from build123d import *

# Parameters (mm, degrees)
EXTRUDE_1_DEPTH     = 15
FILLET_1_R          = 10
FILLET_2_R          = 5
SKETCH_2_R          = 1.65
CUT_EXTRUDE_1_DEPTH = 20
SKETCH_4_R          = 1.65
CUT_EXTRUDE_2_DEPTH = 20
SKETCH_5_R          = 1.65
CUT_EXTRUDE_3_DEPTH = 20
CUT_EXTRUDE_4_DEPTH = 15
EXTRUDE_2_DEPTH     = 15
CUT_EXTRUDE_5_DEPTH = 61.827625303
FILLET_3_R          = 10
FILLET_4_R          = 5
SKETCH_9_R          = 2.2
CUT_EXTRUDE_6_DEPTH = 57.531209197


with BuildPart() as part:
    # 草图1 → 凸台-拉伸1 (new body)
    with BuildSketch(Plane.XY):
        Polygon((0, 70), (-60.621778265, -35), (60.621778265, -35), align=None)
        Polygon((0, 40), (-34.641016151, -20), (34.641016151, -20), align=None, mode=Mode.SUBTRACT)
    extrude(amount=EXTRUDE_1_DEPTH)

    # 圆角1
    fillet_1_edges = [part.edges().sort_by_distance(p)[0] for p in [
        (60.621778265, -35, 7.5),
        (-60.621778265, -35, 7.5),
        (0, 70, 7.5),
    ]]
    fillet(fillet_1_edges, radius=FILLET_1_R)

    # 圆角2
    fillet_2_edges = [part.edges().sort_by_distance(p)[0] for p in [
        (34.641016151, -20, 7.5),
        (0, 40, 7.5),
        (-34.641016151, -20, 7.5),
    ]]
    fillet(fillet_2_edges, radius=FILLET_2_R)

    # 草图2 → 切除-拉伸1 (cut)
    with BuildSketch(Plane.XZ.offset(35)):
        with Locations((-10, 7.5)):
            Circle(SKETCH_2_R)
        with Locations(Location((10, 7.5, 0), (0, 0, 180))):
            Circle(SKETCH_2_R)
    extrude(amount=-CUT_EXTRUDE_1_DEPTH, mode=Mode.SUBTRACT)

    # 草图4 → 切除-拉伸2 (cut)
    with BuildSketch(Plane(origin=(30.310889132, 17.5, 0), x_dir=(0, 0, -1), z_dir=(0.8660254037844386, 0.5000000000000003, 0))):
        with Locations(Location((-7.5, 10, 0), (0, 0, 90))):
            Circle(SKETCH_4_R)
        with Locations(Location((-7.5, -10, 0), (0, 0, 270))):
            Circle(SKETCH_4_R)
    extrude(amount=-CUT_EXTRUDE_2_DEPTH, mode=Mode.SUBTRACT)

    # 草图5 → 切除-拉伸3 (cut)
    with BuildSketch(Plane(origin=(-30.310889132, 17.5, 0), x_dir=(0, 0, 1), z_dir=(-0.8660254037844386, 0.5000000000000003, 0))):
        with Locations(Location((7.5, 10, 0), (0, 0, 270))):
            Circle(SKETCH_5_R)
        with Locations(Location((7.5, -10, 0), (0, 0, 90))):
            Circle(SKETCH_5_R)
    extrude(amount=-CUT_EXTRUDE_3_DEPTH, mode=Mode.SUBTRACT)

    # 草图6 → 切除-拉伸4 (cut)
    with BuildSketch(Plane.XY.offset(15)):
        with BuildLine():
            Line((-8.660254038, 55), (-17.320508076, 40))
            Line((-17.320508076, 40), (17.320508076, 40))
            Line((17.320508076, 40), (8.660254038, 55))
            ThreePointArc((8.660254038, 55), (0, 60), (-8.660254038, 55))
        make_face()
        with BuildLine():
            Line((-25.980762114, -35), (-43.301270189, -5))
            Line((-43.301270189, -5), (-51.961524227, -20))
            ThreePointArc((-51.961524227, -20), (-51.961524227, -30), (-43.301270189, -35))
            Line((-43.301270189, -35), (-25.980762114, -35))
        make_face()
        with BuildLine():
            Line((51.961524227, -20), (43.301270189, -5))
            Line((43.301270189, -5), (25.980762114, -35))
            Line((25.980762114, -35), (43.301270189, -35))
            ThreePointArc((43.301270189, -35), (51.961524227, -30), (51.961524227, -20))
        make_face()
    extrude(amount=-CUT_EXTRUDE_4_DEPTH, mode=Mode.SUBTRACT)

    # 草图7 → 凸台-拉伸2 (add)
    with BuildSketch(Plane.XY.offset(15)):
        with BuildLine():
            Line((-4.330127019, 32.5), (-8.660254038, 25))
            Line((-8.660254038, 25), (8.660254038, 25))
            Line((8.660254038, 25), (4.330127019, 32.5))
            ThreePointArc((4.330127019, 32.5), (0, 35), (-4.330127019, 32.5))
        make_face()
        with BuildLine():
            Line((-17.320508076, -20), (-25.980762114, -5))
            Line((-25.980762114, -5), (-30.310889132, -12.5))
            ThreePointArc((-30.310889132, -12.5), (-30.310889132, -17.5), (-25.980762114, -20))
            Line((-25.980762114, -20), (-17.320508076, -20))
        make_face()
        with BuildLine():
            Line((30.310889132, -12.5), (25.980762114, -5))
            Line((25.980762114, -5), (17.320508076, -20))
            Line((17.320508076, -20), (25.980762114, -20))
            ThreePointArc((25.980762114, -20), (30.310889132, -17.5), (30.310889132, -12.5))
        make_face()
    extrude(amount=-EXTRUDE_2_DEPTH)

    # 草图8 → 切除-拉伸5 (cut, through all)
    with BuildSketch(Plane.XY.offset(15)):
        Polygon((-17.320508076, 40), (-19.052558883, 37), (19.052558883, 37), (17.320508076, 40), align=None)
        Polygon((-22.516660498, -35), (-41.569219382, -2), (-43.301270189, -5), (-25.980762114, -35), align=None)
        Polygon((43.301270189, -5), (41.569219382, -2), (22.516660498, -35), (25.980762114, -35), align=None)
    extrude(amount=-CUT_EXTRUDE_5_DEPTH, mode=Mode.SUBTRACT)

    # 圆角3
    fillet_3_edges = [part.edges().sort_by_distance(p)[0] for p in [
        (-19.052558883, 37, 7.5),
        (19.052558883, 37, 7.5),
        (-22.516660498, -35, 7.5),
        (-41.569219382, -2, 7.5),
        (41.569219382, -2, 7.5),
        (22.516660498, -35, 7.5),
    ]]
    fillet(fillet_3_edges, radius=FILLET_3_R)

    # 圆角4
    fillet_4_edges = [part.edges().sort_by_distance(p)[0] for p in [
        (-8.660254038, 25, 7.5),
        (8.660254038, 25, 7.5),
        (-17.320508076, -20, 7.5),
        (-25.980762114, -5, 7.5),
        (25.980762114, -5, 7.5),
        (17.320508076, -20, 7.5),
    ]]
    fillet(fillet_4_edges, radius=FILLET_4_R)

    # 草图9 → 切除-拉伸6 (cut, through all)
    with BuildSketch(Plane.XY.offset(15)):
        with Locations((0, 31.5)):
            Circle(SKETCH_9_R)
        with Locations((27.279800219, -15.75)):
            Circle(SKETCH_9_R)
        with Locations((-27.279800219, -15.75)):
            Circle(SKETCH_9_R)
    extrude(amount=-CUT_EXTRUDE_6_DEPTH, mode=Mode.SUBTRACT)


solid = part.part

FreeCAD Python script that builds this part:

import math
import FreeCAD as App
import Part
import Sketcher

V = App.Vector
Q = App.Units.Quantity


def edges_at(feature, points):
    """Names of the edges that pass closest to the given points."""
    edges = feature.Shape.Edges
    near = lambda p: min(range(len(edges)), key=lambda i: edges[i].distToShape(Part.Vertex(*p))[0])
    return sorted({f"Edge{near(p) + 1}" for p in points})

doc = App.newDocument("Part")
params = doc.addObject("Spreadsheet::Sheet", "Params")
for row, (alias, value) in enumerate([
    ("pad1_length", "15 mm"),
    ("fillet_radius", "10 mm"),
    ("fillet2_radius", "5 mm"),
    ("sketch2_diameter", "3.3 mm"),
    ("pocket1_length", "20 mm"),
    ("sketch3_diameter", "3.3 mm"),
    ("pocket2_length", "20 mm"),
    ("sketch4_diameter", "3.3 mm"),
    ("pocket3_length", "20 mm"),
    ("sketch5_radius", "10 mm"),
    ("pocket4_length", "15 mm"),
    ("sketch6_radius", "5 mm"),
    ("pad2_length", "15 mm"),
    ("fillet3_radius", "10 mm"),
    ("fillet4_radius", "5 mm"),
    ("sketch8_diameter", "4.4 mm"),
], start=1):
    params.set(f"A{row}", alias)
    params.set(f"B{row}", "=" + value)
    params.setAlias(f"B{row}", alias)

body = doc.addObject("PartDesign::Body", "Body")

# Sketch on XY plane
sketch1 = doc.addObject("Sketcher::SketchObject", "Sketch")
body.addObject(sketch1)
sketch1.AttachmentSupport = (doc.XY_Plane, [""])
sketch1.MapMode = "FlatFace"
sketch1.addGeometry([
    Part.LineSegment(V(0, 70, 0), V(-60.621778, -35, 0)),  # 0
    Part.LineSegment(V(-60.621778, -35, 0), V(60.621778, -35, 0)),  # 1
    Part.LineSegment(V(60.621778, -35, 0), V(0, 70, 0)),  # 2
    Part.LineSegment(V(-34.641016, -20, 0), V(0, 40, 0)),  # 3
    Part.LineSegment(V(0, 40, 0), V(34.641016, -20, 0)),  # 4
    Part.LineSegment(V(34.641016, -20, 0), V(-34.641016, -20, 0)),  # 5
], False)
sketch1.addConstraint([
    Sketcher.Constraint("Coincident", 0, 2, 1, 1),
    Sketcher.Constraint("Coincident", 1, 2, 2, 1),
    Sketcher.Constraint("Coincident", 2, 2, 0, 1),
    Sketcher.Constraint("Coincident", 3, 2, 4, 1),
    Sketcher.Constraint("Coincident", 4, 2, 5, 1),
    Sketcher.Constraint("Coincident", 5, 2, 3, 1),
    Sketcher.Constraint("Horizontal", 1),
    Sketcher.Constraint("Horizontal", 5),
    Sketcher.Constraint("PointOnObject", 2, 2, -2),
    Sketcher.Constraint("PointOnObject", 3, 2, -2),
    Sketcher.Constraint("Parallel", 0, 3),
    Sketcher.Constraint("Parallel", 2, 4),
    Sketcher.Constraint("Equal", 0, 2),
    Sketcher.Constraint("Angle", 0, Q("-120 deg")),
    Sketcher.Constraint("DistanceY", 0, 2, -1, 1, Q("35 mm")),
    Sketcher.Constraint("DistanceY", -1, 1, 2, 2, Q("70 mm")),
    Sketcher.Constraint("DistanceY", -1, 1, 3, 2, Q("40 mm")),
    Sketcher.Constraint("DistanceY", 4, 2, -1, 1, Q("20 mm")),
])
pad1 = doc.addObject("PartDesign::Pad", "Pad")
body.addObject(pad1)
pad1.Profile = sketch1
pad1.setExpression("Length", "Params.pad1_length")
doc.recompute()

fillet = doc.addObject("PartDesign::Fillet", "Fillet")
body.addObject(fillet)
fillet.Base = (pad1, edges_at(pad1, [(60.622, -35, 7.5), (-60.622, -35, 7.5), (0, 70, 7.5)]))
fillet.setExpression("Radius", "Params.fillet_radius")
doc.recompute()

fillet2 = doc.addObject("PartDesign::Fillet", "Fillet001")
body.addObject(fillet2)
fillet2.Base = (fillet, edges_at(fillet, [(34.641, -20, 7.5), (0, 40, 7.5), (-34.641, -20, 7.5)]))
fillet2.setExpression("Radius", "Params.fillet2_radius")

# Sketch on XZ plane
sketch2 = doc.addObject("Sketcher::SketchObject", "Sketch001")
body.addObject(sketch2)
sketch2.AttachmentSupport = (doc.XZ_Plane, [""])
sketch2.MapMode = "FlatFace"
sketch2.AttachmentOffset = App.Placement(V(0, 0, 35), App.Rotation())
sketch2.addGeometry([
    Part.Circle(V(-10, 7.5, 0), V(0, 0, 1), 1.65),
    Part.Circle(V(10, 7.5, 0), V(0, 0, 1), 1.65),
], False)
sketch2.addConstraint([
    Sketcher.Constraint("Equal", 0, 1),
    Sketcher.Constraint("Symmetric", 0, 3, 1, 3, -2),
    Sketcher.Constraint("Diameter", 0, Q("3.3 mm")),
    Sketcher.Constraint("DistanceX", 0, 3, -1, 1, Q("10 mm")),
    Sketcher.Constraint("DistanceY", -1, 1, 0, 3, Q("7.5 mm")),
])
sketch2.setExpression("Constraints[2]", "Params.sketch2_diameter")
pocket1 = doc.addObject("PartDesign::Pocket", "Pocket")
body.addObject(pocket1)
pocket1.Profile = sketch2
pocket1.setExpression("Length", "Params.pocket1_length")

# Sketch on an angled plane
sketch3 = doc.addObject("Sketcher::SketchObject", "Sketch002")
body.addObject(sketch3)
sketch3.Placement = App.Placement(V(30.310889, 17.5, 0), App.Rotation(V(0, 0, -1), V(-0.5, 0.866025404, 0), V(0.866025404, 0.5, 0), "ZXY"))
sketch3.addGeometry([
    Part.Circle(V(-7.5, 10, 0), V(0, 0, 1), 1.65),
    Part.Circle(V(-7.5, -10, 0), V(0, 0, 1), 1.65),
], False)
sketch3.addConstraint([
    Sketcher.Constraint("Equal", 0, 1),
    Sketcher.Constraint("Symmetric", 0, 3, 1, 3, -1),
    Sketcher.Constraint("Diameter", 0, Q("3.3 mm")),
    Sketcher.Constraint("DistanceY", -1, 1, 0, 3, Q("10 mm")),
    Sketcher.Constraint("DistanceX", 0, 3, -1, 1, Q("7.5 mm")),
])
sketch3.setExpression("Constraints[2]", "Params.sketch3_diameter")
pocket2 = doc.addObject("PartDesign::Pocket", "Pocket001")
body.addObject(pocket2)
pocket2.Profile = sketch3
pocket2.setExpression("Length", "Params.pocket2_length")

# Sketch on an angled plane
sketch4 = doc.addObject("Sketcher::SketchObject", "Sketch003")
body.addObject(sketch4)
sketch4.Placement = App.Placement(V(-30.310889, 17.5, 0), App.Rotation(V(0, 0, 1), V(0.5, 0.866025404, 0), V(-0.866025404, 0.5, 0), "ZXY"))
sketch4.addGeometry([
    Part.Circle(V(7.5, 10, 0), V(0, 0, 1), 1.65),
    Part.Circle(V(7.5, -10, 0), V(0, 0, 1), 1.65),
], False)
sketch4.addConstraint([
    Sketcher.Constraint("Equal", 0, 1),
    Sketcher.Constraint("Symmetric", 0, 3, 1, 3, -1),
    Sketcher.Constraint("Diameter", 0, Q("3.3 mm")),
    Sketcher.Constraint("DistanceY", -1, 1, 0, 3, Q("10 mm")),
    Sketcher.Constraint("DistanceX", -1, 1, 0, 3, Q("7.5 mm")),
])
sketch4.setExpression("Constraints[2]", "Params.sketch4_diameter")
pocket3 = doc.addObject("PartDesign::Pocket", "Pocket002")
body.addObject(pocket3)
pocket3.Profile = sketch4
pocket3.setExpression("Length", "Params.pocket3_length")

# Sketch on XY plane
sketch5 = doc.addObject("Sketcher::SketchObject", "Sketch004")
body.addObject(sketch5)
sketch5.AttachmentSupport = (doc.XY_Plane, [""])
sketch5.MapMode = "FlatFace"
sketch5.AttachmentOffset = App.Placement(V(0, 0, 15), App.Rotation())
sketch5.addGeometry([
    Part.LineSegment(V(-8.660254, 55, 0), V(-17.320508, 40, 0)),  # 0
    Part.LineSegment(V(-17.320508, 40, 0), V(17.320508, 40, 0)),  # 1
    Part.LineSegment(V(17.320508, 40, 0), V(8.660254, 55, 0)),  # 2
    Part.ArcOfCircle(Part.Circle(V(0, 50, 0), V(0, 0, 1), 10), math.radians(30), math.radians(150)),  # 3
    Part.LineSegment(V(-25.980762, -35, 0), V(-43.30127, -5, 0)),  # 4
    Part.LineSegment(V(-43.30127, -5, 0), V(-51.961524, -20, 0)),  # 5
    Part.ArcOfCircle(Part.Circle(V(-43.30127, -25, 0), V(0, 0, 1), 10), math.radians(150), math.radians(270)),  # 6
    Part.LineSegment(V(-43.30127, -35, 0), V(-25.980762, -35, 0)),  # 7
    Part.LineSegment(V(51.961524, -20, 0), V(43.30127, -5, 0)),  # 8
    Part.LineSegment(V(43.30127, -5, 0), V(25.980762, -35, 0)),  # 9
    Part.LineSegment(V(25.980762, -35, 0), V(43.30127, -35, 0)),  # 10
    Part.ArcOfCircle(Part.Circle(V(43.30127, -25, 0), V(0, 0, 1), 10), math.radians(-90), math.radians(30)),  # 11
], False)
sketch5.addConstraint([
    Sketcher.Constraint("Coincident", 0, 2, 1, 1),
    Sketcher.Constraint("Coincident", 1, 2, 2, 1),
    Sketcher.Constraint("Tangent", 2, 2, 3, 1),
    Sketcher.Constraint("Tangent", 3, 2, 0, 1),
    Sketcher.Constraint("Coincident", 4, 2, 5, 1),
    Sketcher.Constraint("Tangent", 5, 2, 6, 1),
    Sketcher.Constraint("Tangent", 6, 2, 7, 1),
    Sketcher.Constraint("Coincident", 7, 2, 4, 1),
    Sketcher.Constraint("Coincident", 8, 2, 9, 1),
    Sketcher.Constraint("Coincident", 9, 2, 10, 1),
    Sketcher.Constraint("Tangent", 10, 2, 11, 1),
    Sketcher.Constraint("Tangent", 11, 2, 8, 1),
    Sketcher.Constraint("Horizontal", 1),
    Sketcher.Constraint("Horizontal", 7),
    Sketcher.Constraint("Horizontal", 10),
    Sketcher.Constraint("Equal", 3, 6),
    Sketcher.Constraint("Equal", 6, 11),
    Sketcher.Constraint("Symmetric", 6, 3, 11, 3, -2),
    Sketcher.Constraint("Symmetric", 2, 2, 3, 2, -2),
    Sketcher.Constraint("Symmetric", 4, 2, 8, 2, -2),
    Sketcher.Constraint("Parallel", 2, 4),
    Sketcher.Constraint("Parallel", 0, 5),
    Sketcher.Constraint("Parallel", 5, 9),
    Sketcher.Constraint("Vertical", 6, 3, 4, 2),
    Sketcher.Constraint("Equal", 2, 5),
    Sketcher.Constraint("Radius", 3, Q("10 mm")),
    Sketcher.Constraint("Angle", 0, Q("-120 deg")),
    Sketcher.Constraint("DistanceY", -1, 1, 3, 3, Q("50 mm")),
    Sketcher.Constraint("DistanceY", 6, 3, -1, 1, Q("25 mm")),
    Sketcher.Constraint("DistanceX", 6, 3, -1, 1, Q("43.30127 mm")),
])
sketch5.setExpression("Constraints[25]", "Params.sketch5_radius")
pocket4 = doc.addObject("PartDesign::Pocket", "Pocket003")
body.addObject(pocket4)
pocket4.Profile = sketch5
pocket4.setExpression("Length", "Params.pocket4_length")

# Sketch on XY plane
sketch6 = doc.addObject("Sketcher::SketchObject", "Sketch005")
body.addObject(sketch6)
sketch6.AttachmentSupport = (doc.XY_Plane, [""])
sketch6.MapMode = "FlatFace"
sketch6.AttachmentOffset = App.Placement(V(0, 0, 15), App.Rotation())
sketch6.addGeometry([
    Part.LineSegment(V(-4.330127, 32.5, 0), V(-8.660254, 25, 0)),  # 0
    Part.LineSegment(V(-8.660254, 25, 0), V(8.660254, 25, 0)),  # 1
    Part.LineSegment(V(8.660254, 25, 0), V(4.330127, 32.5, 0)),  # 2
    Part.ArcOfCircle(Part.Circle(V(0, 30, 0), V(0, 0, 1), 5), math.radians(30), math.radians(150)),  # 3
    Part.LineSegment(V(-17.320508, -20, 0), V(-25.980762, -5, 0)),  # 4
    Part.LineSegment(V(-25.980762, -5, 0), V(-30.310889, -12.5, 0)),  # 5
    Part.ArcOfCircle(Part.Circle(V(-25.980762, -15, 0), V(0, 0, 1), 5), math.radians(150), math.radians(270)),  # 6
    Part.LineSegment(V(-25.980762, -20, 0), V(-17.320508, -20, 0)),  # 7
    Part.LineSegment(V(30.310889, -12.5, 0), V(25.980762, -5, 0)),  # 8
    Part.LineSegment(V(25.980762, -5, 0), V(17.320508, -20, 0)),  # 9
    Part.LineSegment(V(17.320508, -20, 0), V(25.980762, -20, 0)),  # 10
    Part.ArcOfCircle(Part.Circle(V(25.980762, -15, 0), V(0, 0, 1), 5), math.radians(-90), math.radians(30)),  # 11
], False)
sketch6.addConstraint([
    Sketcher.Constraint("Coincident", 0, 2, 1, 1),
    Sketcher.Constraint("Coincident", 1, 2, 2, 1),
    Sketcher.Constraint("Tangent", 2, 2, 3, 1),
    Sketcher.Constraint("Tangent", 3, 2, 0, 1),
    Sketcher.Constraint("Coincident", 4, 2, 5, 1),
    Sketcher.Constraint("Tangent", 5, 2, 6, 1),
    Sketcher.Constraint("Tangent", 6, 2, 7, 1),
    Sketcher.Constraint("Coincident", 7, 2, 4, 1),
    Sketcher.Constraint("Coincident", 8, 2, 9, 1),
    Sketcher.Constraint("Coincident", 9, 2, 10, 1),
    Sketcher.Constraint("Tangent", 10, 2, 11, 1),
    Sketcher.Constraint("Tangent", 11, 2, 8, 1),
    Sketcher.Constraint("Horizontal", 1),
    Sketcher.Constraint("Horizontal", 7),
    Sketcher.Constraint("Horizontal", 10),
    Sketcher.Constraint("Equal", 3, 6),
    Sketcher.Constraint("Equal", 6, 11),
    Sketcher.Constraint("Symmetric", 6, 3, 11, 3, -2),
    Sketcher.Constraint("Symmetric", 2, 2, 3, 2, -2),
    Sketcher.Constraint("Symmetric", 4, 2, 8, 2, -2),
    Sketcher.Constraint("Parallel", 2, 4),
    Sketcher.Constraint("Parallel", 0, 5),
    Sketcher.Constraint("Parallel", 5, 9),
    Sketcher.Constraint("Vertical", 6, 3, 4, 2),
    Sketcher.Constraint("Equal", 2, 5),
    Sketcher.Constraint("Radius", 3, Q("5 mm")),
    Sketcher.Constraint("Angle", 0, Q("-120 deg")),
    Sketcher.Constraint("DistanceY", -1, 1, 3, 3, Q("30 mm")),
    Sketcher.Constraint("DistanceY", 6, 3, -1, 1, Q("15 mm")),
    Sketcher.Constraint("DistanceX", 5, 2, -1, 1, Q("30.310889 mm")),
])
sketch6.setExpression("Constraints[25]", "Params.sketch6_radius")
pad2 = doc.addObject("PartDesign::Pad", "Pad001")
body.addObject(pad2)
pad2.Profile = sketch6
pad2.setExpression("Length", "Params.pad2_length")
pad2.Reversed = True

# Sketch on XY plane
sketch7 = doc.addObject("Sketcher::SketchObject", "Sketch006")
body.addObject(sketch7)
sketch7.AttachmentSupport = (doc.XY_Plane, [""])
sketch7.MapMode = "FlatFace"
sketch7.AttachmentOffset = App.Placement(V(0, 0, 15), App.Rotation())
sketch7.addGeometry([
    Part.LineSegment(V(-17.320508, 40, 0), V(-19.052559, 37, 0)),  # 0
    Part.LineSegment(V(-19.052559, 37, 0), V(19.052559, 37, 0)),  # 1
    Part.LineSegment(V(19.052559, 37, 0), V(17.320508, 40, 0)),  # 2
    Part.LineSegment(V(17.320508, 40, 0), V(-17.320508, 40, 0)),  # 3
    Part.LineSegment(V(-22.51666, -35, 0), V(-41.569219, -2, 0)),  # 4
    Part.LineSegment(V(-41.569219, -2, 0), V(-43.30127, -5, 0)),  # 5
    Part.LineSegment(V(-43.30127, -5, 0), V(-25.980762, -35, 0)),  # 6
    Part.LineSegment(V(-25.980762, -35, 0), V(-22.51666, -35, 0)),  # 7
    Part.LineSegment(V(43.30127, -5, 0), V(41.569219, -2, 0)),  # 8
    Part.LineSegment(V(41.569219, -2, 0), V(22.51666, -35, 0)),  # 9
    Part.LineSegment(V(22.51666, -35, 0), V(25.980762, -35, 0)),  # 10
    Part.LineSegment(V(25.980762, -35, 0), V(43.30127, -5, 0)),  # 11
], False)
sketch7.addConstraint([
    Sketcher.Constraint("Coincident", 0, 2, 1, 1),
    Sketcher.Constraint("Coincident", 1, 2, 2, 1),
    Sketcher.Constraint("Coincident", 2, 2, 3, 1),
    Sketcher.Constraint("Coincident", 3, 2, 0, 1),
    Sketcher.Constraint("Coincident", 4, 2, 5, 1),
    Sketcher.Constraint("Coincident", 5, 2, 6, 1),
    Sketcher.Constraint("Coincident", 6, 2, 7, 1),
    Sketcher.Constraint("Coincident", 7, 2, 4, 1),
    Sketcher.Constraint("Coincident", 8, 2, 9, 1),
    Sketcher.Constraint("Coincident", 9, 2, 10, 1),
    Sketcher.Constraint("Coincident", 10, 2, 11, 1),
    Sketcher.Constraint("Coincident", 11, 2, 8, 1),
    Sketcher.Constraint("Horizontal", 1),
    Sketcher.Constraint("Horizontal", 3),
    Sketcher.Constraint("Horizontal", 7),
    Sketcher.Constraint("Horizontal", 10),
    Sketcher.Constraint("Symmetric", 4, 2, 8, 2, -2),
    Sketcher.Constraint("Symmetric", 7, 2, 9, 2, -2),
    Sketcher.Constraint("Symmetric", 5, 2, 11, 2, -2),
    Sketcher.Constraint("Parallel", 2, 4),
    Sketcher.Constraint("Parallel", 0, 5),
    Sketcher.Constraint("Parallel", 4, 6),
    Sketcher.Constraint("Parallel", 6, 8),
    Sketcher.Constraint("Parallel", 9, 11),
    Sketcher.Constraint("Equal", 2, 5),
    Sketcher.Constraint("Angle", 0, Q("-120 deg")),
    Sketcher.Constraint("DistanceY", -1, 1, 0, 2, Q("37 mm")),
    Sketcher.Constraint("DistanceY", -1, 1, 2, 2, Q("40 mm")),
    Sketcher.Constraint("DistanceY", 4, 2, -1, 1, Q("2 mm")),
    Sketcher.Constraint("DistanceY", 6, 2, -1, 1, Q("35 mm")),
    Sketcher.Constraint("DistanceX", 7, 2, 0, 2, Q("3.464102 mm")),
    Sketcher.Constraint("DistanceX", 1, 2, 9, 2, Q("3.464102 mm")),
    Sketcher.Constraint("DistanceX", 1, 1, 1, 2, Q("38.105118 mm")),
])
pocket5 = doc.addObject("PartDesign::Pocket", "Pocket004")
body.addObject(pocket5)
pocket5.Profile = sketch7
pocket5.Type = "ThroughAll"
doc.recompute()

fillet3 = doc.addObject("PartDesign::Fillet", "Fillet002")
body.addObject(fillet3)
fillet3.Base = (pocket5, edges_at(pocket5, [
    (-19.053, 37, 7.5),
    (19.053, 37, 7.5),
    (-22.517, -35, 7.5),
    (-41.569, -2, 7.5),
    (41.569, -2, 7.5),
    (22.517, -35, 7.5),
]))
fillet3.setExpression("Radius", "Params.fillet3_radius")
doc.recompute()

fillet4 = doc.addObject("PartDesign::Fillet", "Fillet003")
body.addObject(fillet4)
fillet4.Base = (fillet3, edges_at(fillet3, [
    (-8.66, 25, 7.5),
    (8.66, 25, 7.5),
    (-17.321, -20, 7.5),
    (-25.981, -5, 7.5),
    (25.981, -5, 7.5),
    (17.321, -20, 7.5),
]))
fillet4.setExpression("Radius", "Params.fillet4_radius")

# Sketch on XY plane
sketch8 = doc.addObject("Sketcher::SketchObject", "Sketch007")
body.addObject(sketch8)
sketch8.AttachmentSupport = (doc.XY_Plane, [""])
sketch8.MapMode = "FlatFace"
sketch8.AttachmentOffset = App.Placement(V(0, 0, 15), App.Rotation())
sketch8.addGeometry([
    Part.Circle(V(0, 31.5, 0), V(0, 0, 1), 2.2),
    Part.Circle(V(27.2798, -15.75, 0), V(0, 0, 1), 2.2),
    Part.Circle(V(-27.2798, -15.75, 0), V(0, 0, 1), 2.2),
], False)
sketch8.addConstraint([
    Sketcher.Constraint("Equal", 0, 1),
    Sketcher.Constraint("Equal", 1, 2),
    Sketcher.Constraint("Symmetric", 1, 3, 2, 3, -2),
    Sketcher.Constraint("PointOnObject", 0, 3, -2),
    Sketcher.Constraint("Diameter", 0, Q("4.4 mm")),
    Sketcher.Constraint("DistanceY", -1, 1, 0, 3, Q("31.5 mm")),
    Sketcher.Constraint("DistanceY", 1, 3, -1, 1, Q("15.75 mm")),
    Sketcher.Constraint("DistanceX", -1, 1, 1, 3, Q("27.2798 mm")),
])
sketch8.setExpression("Constraints[4]", "Params.sketch8_diameter")
pocket6 = doc.addObject("PartDesign::Pocket", "Pocket005")
body.addObject(pocket6)
pocket6.Profile = sketch8
pocket6.Type = "ThroughAll"

doc.recompute()
